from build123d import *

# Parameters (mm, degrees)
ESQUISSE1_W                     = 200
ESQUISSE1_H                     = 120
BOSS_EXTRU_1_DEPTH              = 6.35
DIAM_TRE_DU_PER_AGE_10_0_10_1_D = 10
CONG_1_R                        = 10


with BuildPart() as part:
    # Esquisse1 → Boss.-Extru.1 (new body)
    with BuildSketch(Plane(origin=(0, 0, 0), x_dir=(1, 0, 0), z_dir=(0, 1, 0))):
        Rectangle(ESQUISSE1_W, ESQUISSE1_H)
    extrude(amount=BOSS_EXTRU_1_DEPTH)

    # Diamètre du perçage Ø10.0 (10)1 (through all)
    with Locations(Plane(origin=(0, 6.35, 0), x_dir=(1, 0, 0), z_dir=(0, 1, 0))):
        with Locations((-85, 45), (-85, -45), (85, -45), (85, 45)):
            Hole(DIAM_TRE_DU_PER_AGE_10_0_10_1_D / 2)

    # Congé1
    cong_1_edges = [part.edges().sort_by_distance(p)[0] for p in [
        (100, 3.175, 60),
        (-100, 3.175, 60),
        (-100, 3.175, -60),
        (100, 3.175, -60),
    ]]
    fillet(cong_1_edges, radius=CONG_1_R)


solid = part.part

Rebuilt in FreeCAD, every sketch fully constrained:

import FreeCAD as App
import Part
import Sketcher


def edges_at(feature, points):
    """Names of the edges that pass closest to the given points."""
    edges = feature.Shape.Edges
    near = lambda p: min(range(len(edges)), key=lambda i: edges[i].distToShape(Part.Vertex(*p))[0])
    return sorted({f"Edge{near(p) + 1}" for p in points})


def add_polygon(sketch, points):
    """Adds a closed chain of lines whose ends are joined by coincident constraints."""
    first, n = sketch.GeometryCount, len(points)
    for a, b in zip(points, points[1:] + points[:1]):
        sketch.addGeometry(Part.LineSegment(App.Vector(*a, 0), App.Vector(*b, 0)), False)
    for i in range(n):
        sketch.addConstraint(Sketcher.Constraint("Coincident", first + i, 2, first + (i + 1) % n, 1))

doc = App.newDocument("Part")
params = doc.addObject("Spreadsheet::Sheet", "Params")
for row, (alias, value) in enumerate([
    ("sketch1_width", "200 mm"),
    ("sketch1_height", "120 mm"),
    ("pad1_length", "6.35 mm"),
    ("sketch2_diameter", "10 mm"),
    ("hole_diameter", "10 mm"),
    ("fillet_radius", "10 mm"),
], start=1):
    params.set(f"A{row}", alias)
    params.set(f"B{row}", "=" + value)
    params.setAlias(f"B{row}", alias)

body = doc.addObject("PartDesign::Body", "Body")

# Sketch on XZ plane
sketch1 = body.newObject("Sketcher::SketchObject", "Sketch")
sketch1.AttachmentSupport = (doc.getObject("XZ_Plane"), [""])
sketch1.MapMode = "FlatFace"
add_polygon(sketch1, [(-100, -60), (-100, 60), (100, 60), (100, -60)])  # lines 0-3
sketch1.addConstraint([
    Sketcher.Constraint("Vertical", 0),
    Sketcher.Constraint("Horizontal", 1),
    Sketcher.Constraint("Vertical", 2),
    Sketcher.Constraint("Horizontal", 3),
    Sketcher.Constraint("Symmetric", 0, 2, 2, 2, -1, 1),
    Sketcher.Constraint("DistanceX", 1, 1, 1, 2, 200.0),
    Sketcher.Constraint("DistanceY", 0, 1, 0, 2, 120.0),
])
sketch1.setExpression("Constraints[9]", "Params.sketch1_width")
sketch1.setExpression("Constraints[10]", "Params.sketch1_height")
pad1 = body.newObject("PartDesign::Pad", "Pad")
pad1.Profile = sketch1
pad1.setExpression("Length", "Params.pad1_length")
pad1.Reversed = True

# Sketch on XZ plane
sketch2 = body.newObject("Sketcher::SketchObject", "Sketch001")
sketch2.AttachmentSupport = (doc.getObject("XZ_Plane"), [""])
sketch2.MapMode = "FlatFace"
sketch2.AttachmentOffset = App.Placement(App.Vector(0, 0, -6.35), App.Rotation())
sketch2.addGeometry([
    Part.Circle(App.Vector(-85, -45, 0), App.Vector(0, 0, 1), 5),
    Part.Circle(App.Vector(-85, 45, 0), App.Vector(0, 0, 1), 5),
    Part.Circle(App.Vector(85, 45, 0), App.Vector(0, 0, 1), 5),
    Part.Circle(App.Vector(85, -45, 0), App.Vector(0, 0, 1), 5),
], False)
sketch2.addConstraint([
    Sketcher.Constraint("Equal", 0, 1),
    Sketcher.Constraint("Equal", 1, 2),
    Sketcher.Constraint("Equal", 2, 3),
    Sketcher.Constraint("Symmetric", 0, 3, 2, 3, -1, 1),
    Sketcher.Constraint("Symmetric", 1, 3, 3, 3, -1, 1),
    Sketcher.Constraint("Symmetric", 1, 3, 2, 3, -2),
    Sketcher.Constraint("Diameter", 0, 10.0),
    Sketcher.Constraint("DistanceX", 0, 3, -1, 1, 85.0),
    Sketcher.Constraint("DistanceY", 0, 3, -1, 1, 45.0),
])
sketch2.setExpression("Constraints[6]", "Params.sketch2_diameter")
doc.recompute()
hole = body.newObject("PartDesign::Hole", "Hole")
hole.Profile = sketch2
hole.ThreadType = "None"
hole.setExpression("Diameter", "Params.hole_diameter")
hole.DepthType = "ThroughAll"
hole.Reversed = True
doc.recompute()

fillet = body.newObject("PartDesign::Fillet", "Fillet")
fillet.Base = (hole, edges_at(hole, [
    (100, 3.175, 60),
    (-100, 3.175, 60),
    (-100, 3.175, -60),
    (100, 3.175, -60),
]))
fillet.setExpression("Radius", "Params.fillet_radius")

doc.recompute()
